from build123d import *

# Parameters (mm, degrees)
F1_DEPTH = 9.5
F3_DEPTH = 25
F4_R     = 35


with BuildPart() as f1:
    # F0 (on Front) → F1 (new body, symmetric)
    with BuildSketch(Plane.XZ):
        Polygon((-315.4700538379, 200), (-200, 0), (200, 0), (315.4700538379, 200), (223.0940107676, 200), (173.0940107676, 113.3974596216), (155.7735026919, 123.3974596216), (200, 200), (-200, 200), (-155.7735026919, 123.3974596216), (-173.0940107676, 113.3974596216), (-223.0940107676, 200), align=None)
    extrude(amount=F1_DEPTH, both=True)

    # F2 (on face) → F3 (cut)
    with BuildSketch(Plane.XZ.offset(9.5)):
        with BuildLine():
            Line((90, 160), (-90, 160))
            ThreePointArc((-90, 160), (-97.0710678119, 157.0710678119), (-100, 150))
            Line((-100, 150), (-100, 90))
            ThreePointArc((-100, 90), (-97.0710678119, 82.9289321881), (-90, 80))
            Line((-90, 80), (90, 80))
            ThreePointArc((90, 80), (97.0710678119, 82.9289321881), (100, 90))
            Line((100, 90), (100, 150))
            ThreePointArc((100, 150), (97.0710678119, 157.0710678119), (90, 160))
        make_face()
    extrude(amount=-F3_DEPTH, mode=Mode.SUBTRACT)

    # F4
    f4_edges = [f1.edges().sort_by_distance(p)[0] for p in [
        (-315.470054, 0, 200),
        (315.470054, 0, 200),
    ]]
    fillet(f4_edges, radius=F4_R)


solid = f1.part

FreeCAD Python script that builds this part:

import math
import FreeCAD as App
import Part
import Sketcher
from FreeCAD import Vector
Q = App.Units.Quantity


def edges_at(feature, points):
    """Names of the edges that pass closest to the given points."""
    edges = feature.Shape.Edges
    near = lambda p: min(range(len(edges)), key=lambda i: edges[i].distToShape(Part.Vertex(*p))[0])
    return sorted({f"Edge{near(p) + 1}" for p in points})


def add_polygon(sketch, points):
    """Adds a closed chain of lines whose ends are joined by coincident constraints."""
    first, n = sketch.GeometryCount, len(points)
    for a, b in zip(points, points[1:] + points[:1]):
        sketch.addGeometry(Part.LineSegment(App.Vector(*a, 0), App.Vector(*b, 0)), False)
    for i in range(n):
        sketch.addConstraint(Sketcher.Constraint("Coincident", first + i, 2, first + (i + 1) % n, 1))

doc = App.newDocument("Part")
params = doc.addObject("Spreadsheet::Sheet", "Params")
for row, (alias, value) in enumerate([
    ("sketch1_width", "400 mm"),
    ("sketch1_length", "100 mm"),
    ("sketch1_length2", "20 mm"),
    ("pad1_length", "19 mm"),
    ("sketch2_radius", "10 mm"),
    ("sketch2_width", "180 mm"),
    ("sketch2_height", "60 mm"),
    ("pocket1_length", "25 mm"),
    ("fillet_radius", "35 mm"),
], start=1):
    params.set(f"A{row}", alias)
    params.set(f"B{row}", "=" + value)
    params.setAlias(f"B{row}", alias)

body = doc.addObject("PartDesign::Body", "Body")

sketch1 = body.newObject("Sketcher::SketchObject", "Sketch")
sketch1.AttachmentSupport = (doc.getObject("XZ_Plane"), [""])
sketch1.MapMode = "FlatFace"
add_polygon(sketch1, [(-315.470054, 200), (-200, 0), (200, 0), (315.470054, 200), (223.094011, 200), (173.094011, 113.39746), (155.773503, 123.39746), (200, 200), (-200, 200), (-155.773503, 123.39746), (-173.094011, 113.39746), (-223.094011, 200)])
sketch1.addConstraint([
    Sketcher.Constraint("Horizontal", 1),
    Sketcher.Constraint("Horizontal", 3),
    Sketcher.Constraint("Horizontal", 7),
    Sketcher.Constraint("Horizontal", 11),
    Sketcher.Constraint("Symmetric", 0, 2, 1, 2, -1, 1),
    Sketcher.Constraint("Symmetric", 5, 2, 8, 2, -2),
    Sketcher.Constraint("Symmetric", 4, 2, 9, 2, -2),
    Sketcher.Constraint("Symmetric", 3, 2, 10, 2, -2),
    Sketcher.Constraint("Parallel", 2, 4),
    Sketcher.Constraint("Perpendicular", 4, 5),
    Sketcher.Constraint("Perpendicular", 5, 6),
    Sketcher.Constraint("Parallel", 0, 8),
    Sketcher.Constraint("Perpendicular", 8, 9),
    Sketcher.Constraint("Horizontal", 3, 2, 6, 2),
    Sketcher.Constraint("Vertical", 1, 2, 6, 2),
    Sketcher.Constraint("DistanceX", 1, 1, 1, 2, Q("400 mm")),
    Sketcher.Constraint("Angle", 0, Q("-60 deg")),
    Sketcher.Constraint("Distance", 4, Q("100 mm")),
    Sketcher.Constraint("Distance", 5, Q("20 mm")),
    Sketcher.Constraint("DistanceY", -1, 1, 2, 2, Q("200 mm")),
])
sketch1.setExpression("Constraints[27]", "Params.sketch1_width")
sketch1.setExpression("Constraints[29]", "Params.sketch1_length")
sketch1.setExpression("Constraints[30]", "Params.sketch1_length2")
pad1 = body.newObject("PartDesign::Pad", "Pad")
pad1.Profile = sketch1
pad1.setExpression("Length", "Params.pad1_length")
pad1.Midplane = True

sketch2 = body.newObject("Sketcher::SketchObject", "Sketch001")
sketch2.AttachmentSupport = (doc.getObject("XZ_Plane"), [""])
sketch2.MapMode = "FlatFace"
sketch2.AttachmentOffset = App.Placement(Vector(0, 0, 9.5), App.Rotation())
sketch2.addGeometry([
    Part.LineSegment(Vector(90, 160, 0), Vector(-90, 160, 0)),
    Part.ArcOfCircle(Part.Circle(Vector(-90, 150, 0), Vector(0, 0, 1), 10), math.radians(90), math.radians(180)),
    Part.LineSegment(Vector(-100, 150, 0), Vector(-100, 90, 0)),
    Part.ArcOfCircle(Part.Circle(Vector(-90, 90, 0), Vector(0, 0, 1), 10), math.radians(180), math.radians(270)),
    Part.LineSegment(Vector(-90, 80, 0), Vector(90, 80, 0)),
    Part.ArcOfCircle(Part.Circle(Vector(90, 90, 0), Vector(0, 0, 1), 10), math.radians(-90), math.radians(0)),
    Part.LineSegment(Vector(100, 90, 0), Vector(100, 150, 0)),
    Part.ArcOfCircle(Part.Circle(Vector(90, 150, 0), Vector(0, 0, 1), 10), math.radians(0), math.radians(90)),
], False)
sketch2.addConstraint([
    Sketcher.Constraint("Tangent", 0, 2, 1, 1),
    Sketcher.Constraint("Tangent", 1, 2, 2, 1),
    Sketcher.Constraint("Tangent", 2, 2, 3, 1),
    Sketcher.Constraint("Tangent", 3, 2, 4, 1),
    Sketcher.Constraint("Tangent", 4, 2, 5, 1),
    Sketcher.Constraint("Tangent", 5, 2, 6, 1),
    Sketcher.Constraint("Tangent", 6, 2, 7, 1),
    Sketcher.Constraint("Tangent", 7, 2, 0, 1),
    Sketcher.Constraint("Horizontal", 0),
    Sketcher.Constraint("Vertical", 2),
    Sketcher.Constraint("Horizontal", 4),
    Sketcher.Constraint("Vertical", 6),
    Sketcher.Constraint("Equal", 1, 3),
    Sketcher.Constraint("Equal", 3, 5),
    Sketcher.Constraint("Equal", 5, 7),
    Sketcher.Constraint("Radius", 1, Q("10 mm")),
    Sketcher.Constraint("DistanceX", 0, 2, 0, 1, Q("180 mm")),
    Sketcher.Constraint("DistanceY", 2, 2, 2, 1, Q("60 mm")),
    Sketcher.Constraint("DistanceX", 1, 3, -1, 1, Q("90 mm")),
    Sketcher.Constraint("DistanceY", -1, 1, 1, 3, Q("150 mm")),
])
sketch2.setExpression("Constraints[15]", "Params.sketch2_radius")
sketch2.setExpression("Constraints[16]", "Params.sketch2_width")
sketch2.setExpression("Constraints[17]", "Params.sketch2_height")
pocket1 = body.newObject("PartDesign::Pocket", "Pocket")
pocket1.Profile = sketch2
pocket1.setExpression("Length", "Params.pocket1_length")
doc.recompute()

fillet = body.newObject("PartDesign::Fillet", "Fillet")
fillet.Base = (pocket1, edges_at(pocket1, [(-315.47, 0, 200), (315.47, 0, 200)]))
fillet.setExpression("Radius", "Params.fillet_radius")

doc.recompute()
